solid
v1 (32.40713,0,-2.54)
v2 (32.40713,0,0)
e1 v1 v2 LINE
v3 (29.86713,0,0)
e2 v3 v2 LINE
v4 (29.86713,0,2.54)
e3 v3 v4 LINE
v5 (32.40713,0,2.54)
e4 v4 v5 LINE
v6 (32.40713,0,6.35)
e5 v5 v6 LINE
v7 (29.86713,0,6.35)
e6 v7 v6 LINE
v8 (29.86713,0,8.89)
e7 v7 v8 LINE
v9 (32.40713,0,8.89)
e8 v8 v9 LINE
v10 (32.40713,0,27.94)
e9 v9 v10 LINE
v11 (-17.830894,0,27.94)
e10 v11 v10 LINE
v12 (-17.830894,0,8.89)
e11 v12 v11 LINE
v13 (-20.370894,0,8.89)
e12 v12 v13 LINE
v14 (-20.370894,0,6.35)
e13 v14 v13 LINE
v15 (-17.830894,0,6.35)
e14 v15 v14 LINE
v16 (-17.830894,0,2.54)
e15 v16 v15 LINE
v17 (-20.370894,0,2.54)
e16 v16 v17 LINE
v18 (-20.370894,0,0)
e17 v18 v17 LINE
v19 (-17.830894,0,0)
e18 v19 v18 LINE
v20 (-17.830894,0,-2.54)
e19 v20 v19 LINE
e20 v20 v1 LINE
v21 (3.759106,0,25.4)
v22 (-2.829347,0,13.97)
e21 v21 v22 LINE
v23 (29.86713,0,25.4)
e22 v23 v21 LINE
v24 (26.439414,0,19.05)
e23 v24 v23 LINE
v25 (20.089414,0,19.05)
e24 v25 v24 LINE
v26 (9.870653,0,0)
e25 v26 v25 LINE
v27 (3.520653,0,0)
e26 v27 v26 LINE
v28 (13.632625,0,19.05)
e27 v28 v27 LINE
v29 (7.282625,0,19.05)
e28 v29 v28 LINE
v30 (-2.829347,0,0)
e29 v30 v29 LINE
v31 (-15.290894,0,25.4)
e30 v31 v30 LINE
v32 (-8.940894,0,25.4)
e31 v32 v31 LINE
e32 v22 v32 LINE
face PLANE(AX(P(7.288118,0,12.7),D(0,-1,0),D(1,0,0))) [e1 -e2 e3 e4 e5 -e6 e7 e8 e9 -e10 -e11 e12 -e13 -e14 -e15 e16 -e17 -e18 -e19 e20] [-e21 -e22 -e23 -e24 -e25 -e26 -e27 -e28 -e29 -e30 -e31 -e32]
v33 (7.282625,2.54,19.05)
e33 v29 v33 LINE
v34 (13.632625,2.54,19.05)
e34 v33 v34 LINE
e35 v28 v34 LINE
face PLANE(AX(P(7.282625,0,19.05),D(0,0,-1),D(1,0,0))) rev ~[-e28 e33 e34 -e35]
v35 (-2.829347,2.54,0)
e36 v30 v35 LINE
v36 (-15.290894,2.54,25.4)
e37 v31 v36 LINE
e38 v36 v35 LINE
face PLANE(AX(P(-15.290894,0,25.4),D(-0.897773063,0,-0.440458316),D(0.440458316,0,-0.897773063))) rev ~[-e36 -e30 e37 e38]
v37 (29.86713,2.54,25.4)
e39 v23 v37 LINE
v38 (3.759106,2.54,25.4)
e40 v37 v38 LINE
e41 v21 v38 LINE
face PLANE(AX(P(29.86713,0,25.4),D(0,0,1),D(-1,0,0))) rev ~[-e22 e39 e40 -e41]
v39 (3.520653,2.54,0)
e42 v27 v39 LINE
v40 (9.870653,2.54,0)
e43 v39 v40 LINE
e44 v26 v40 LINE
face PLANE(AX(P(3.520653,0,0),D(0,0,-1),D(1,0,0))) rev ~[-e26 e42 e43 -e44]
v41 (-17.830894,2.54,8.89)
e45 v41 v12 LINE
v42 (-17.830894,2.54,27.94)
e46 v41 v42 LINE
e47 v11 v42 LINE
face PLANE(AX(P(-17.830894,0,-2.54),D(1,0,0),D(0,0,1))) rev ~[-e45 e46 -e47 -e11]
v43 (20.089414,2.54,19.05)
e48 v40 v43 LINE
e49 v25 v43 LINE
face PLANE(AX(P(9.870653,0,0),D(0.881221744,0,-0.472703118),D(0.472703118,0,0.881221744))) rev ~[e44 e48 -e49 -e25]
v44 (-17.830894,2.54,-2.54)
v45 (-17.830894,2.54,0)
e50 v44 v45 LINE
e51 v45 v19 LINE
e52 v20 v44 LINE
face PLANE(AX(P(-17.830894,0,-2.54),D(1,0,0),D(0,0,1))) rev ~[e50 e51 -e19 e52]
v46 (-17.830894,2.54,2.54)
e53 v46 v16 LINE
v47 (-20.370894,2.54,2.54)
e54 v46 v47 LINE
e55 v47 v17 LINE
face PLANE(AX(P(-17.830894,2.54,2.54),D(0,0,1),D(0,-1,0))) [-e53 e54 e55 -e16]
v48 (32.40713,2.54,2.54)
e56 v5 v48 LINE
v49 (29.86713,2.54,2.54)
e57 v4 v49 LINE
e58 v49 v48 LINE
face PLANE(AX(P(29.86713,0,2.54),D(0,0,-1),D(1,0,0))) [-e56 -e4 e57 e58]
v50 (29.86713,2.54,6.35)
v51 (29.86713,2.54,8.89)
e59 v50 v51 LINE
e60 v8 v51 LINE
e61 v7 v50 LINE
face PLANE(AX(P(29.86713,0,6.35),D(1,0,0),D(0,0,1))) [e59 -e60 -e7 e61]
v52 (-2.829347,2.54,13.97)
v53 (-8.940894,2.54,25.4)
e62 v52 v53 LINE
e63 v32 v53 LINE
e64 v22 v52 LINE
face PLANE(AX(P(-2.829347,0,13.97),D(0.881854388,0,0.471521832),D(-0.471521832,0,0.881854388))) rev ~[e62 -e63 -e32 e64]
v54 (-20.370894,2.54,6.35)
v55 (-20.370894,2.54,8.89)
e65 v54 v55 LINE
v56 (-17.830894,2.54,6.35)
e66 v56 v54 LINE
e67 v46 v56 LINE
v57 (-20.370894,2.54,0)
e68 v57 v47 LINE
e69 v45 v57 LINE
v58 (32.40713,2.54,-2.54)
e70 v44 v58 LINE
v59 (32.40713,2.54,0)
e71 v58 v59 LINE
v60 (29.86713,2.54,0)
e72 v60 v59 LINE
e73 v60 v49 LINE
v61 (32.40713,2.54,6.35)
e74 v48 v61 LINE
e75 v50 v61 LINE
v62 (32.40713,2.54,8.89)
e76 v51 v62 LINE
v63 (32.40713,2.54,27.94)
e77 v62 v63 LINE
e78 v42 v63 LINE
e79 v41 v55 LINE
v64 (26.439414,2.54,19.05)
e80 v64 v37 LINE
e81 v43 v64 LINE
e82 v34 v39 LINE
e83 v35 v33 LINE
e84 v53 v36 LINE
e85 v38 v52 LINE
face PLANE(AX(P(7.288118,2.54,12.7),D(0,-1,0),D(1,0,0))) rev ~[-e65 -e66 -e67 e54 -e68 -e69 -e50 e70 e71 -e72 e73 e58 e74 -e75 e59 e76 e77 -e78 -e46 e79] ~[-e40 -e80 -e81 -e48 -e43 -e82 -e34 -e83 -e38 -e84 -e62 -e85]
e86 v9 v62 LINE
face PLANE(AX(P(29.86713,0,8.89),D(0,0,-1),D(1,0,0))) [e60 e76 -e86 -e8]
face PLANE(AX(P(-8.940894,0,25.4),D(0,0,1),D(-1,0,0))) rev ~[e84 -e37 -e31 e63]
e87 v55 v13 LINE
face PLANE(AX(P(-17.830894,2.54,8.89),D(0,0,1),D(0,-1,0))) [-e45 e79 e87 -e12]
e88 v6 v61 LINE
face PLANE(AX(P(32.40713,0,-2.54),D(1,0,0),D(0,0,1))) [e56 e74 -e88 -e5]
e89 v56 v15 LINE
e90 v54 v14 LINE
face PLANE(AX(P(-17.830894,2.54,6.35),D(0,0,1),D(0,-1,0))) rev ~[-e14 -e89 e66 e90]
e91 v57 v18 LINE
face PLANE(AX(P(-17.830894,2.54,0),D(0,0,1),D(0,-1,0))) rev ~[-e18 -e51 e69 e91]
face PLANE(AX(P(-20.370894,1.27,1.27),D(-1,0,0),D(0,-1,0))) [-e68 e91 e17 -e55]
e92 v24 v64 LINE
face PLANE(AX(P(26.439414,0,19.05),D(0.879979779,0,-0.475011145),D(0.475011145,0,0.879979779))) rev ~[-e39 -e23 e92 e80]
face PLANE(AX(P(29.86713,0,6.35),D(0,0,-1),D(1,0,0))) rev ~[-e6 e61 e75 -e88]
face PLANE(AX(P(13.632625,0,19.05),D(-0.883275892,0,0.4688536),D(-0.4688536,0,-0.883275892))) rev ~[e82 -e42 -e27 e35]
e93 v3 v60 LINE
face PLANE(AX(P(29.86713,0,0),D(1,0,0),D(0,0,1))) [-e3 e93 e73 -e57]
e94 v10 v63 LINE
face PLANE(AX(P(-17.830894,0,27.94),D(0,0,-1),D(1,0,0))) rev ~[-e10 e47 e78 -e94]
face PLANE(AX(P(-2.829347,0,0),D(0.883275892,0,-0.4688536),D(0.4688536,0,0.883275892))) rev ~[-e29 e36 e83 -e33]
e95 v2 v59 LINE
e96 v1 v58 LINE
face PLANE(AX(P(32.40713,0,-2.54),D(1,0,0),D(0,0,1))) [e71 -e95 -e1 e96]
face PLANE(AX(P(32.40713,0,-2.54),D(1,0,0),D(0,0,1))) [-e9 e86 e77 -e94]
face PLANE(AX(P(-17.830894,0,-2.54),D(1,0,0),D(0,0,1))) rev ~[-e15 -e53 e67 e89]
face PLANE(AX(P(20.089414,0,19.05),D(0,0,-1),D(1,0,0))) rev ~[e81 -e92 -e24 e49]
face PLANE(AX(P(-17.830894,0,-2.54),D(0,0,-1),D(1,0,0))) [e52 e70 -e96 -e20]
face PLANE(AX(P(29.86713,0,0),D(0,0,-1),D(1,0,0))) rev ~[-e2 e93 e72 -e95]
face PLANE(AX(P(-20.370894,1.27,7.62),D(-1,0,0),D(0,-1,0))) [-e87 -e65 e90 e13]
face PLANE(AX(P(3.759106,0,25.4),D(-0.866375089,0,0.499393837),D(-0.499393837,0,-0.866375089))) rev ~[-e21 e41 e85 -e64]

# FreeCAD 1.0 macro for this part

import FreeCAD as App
import Part
import Sketcher
from FreeCAD import Vector
Q = App.Units.Quantity

doc = App.newDocument("Part")
params = doc.addObject("Spreadsheet::Sheet", "Params")
for row, (alias, value) in enumerate([
    ("sketch1_height", "1.2 in"),
    ("pad1_length", "0.1 in"),
    ("sketch2_width", "0.25 in"),
    ("sketch3_width", "0.1 in"),
    ("sketch4_width", "0.1 in"),
    ("pad2_length", "0.1 in"),
], start=1):
    params.set(f"A{row}", alias)
    params.set(f"B{row}", "=" + value)
    params.setAlias(f"B{row}", alias)

body = doc.addObject("PartDesign::Body", "Body")

sketch1 = body.newObject("Sketcher::SketchObject", "Sketch")
sketch1.AttachmentSupport = (doc.getObject("XZ_Plane"), [""])
sketch1.MapMode = "FlatFace"
sketch1.addGeometry([
    Part.LineSegment(Vector(-18, 28, 0), Vector(-18, -3, 0)),
    Part.LineSegment(Vector(-18, -3, 0), Vector(32, -3, 0)),
    Part.LineSegment(Vector(32, -3, 0), Vector(32, 28, 0)),
    Part.LineSegment(Vector(32, 28, 0), Vector(-18, 28, 0)),
], False)
sketch1.addConstraint([
    Sketcher.Constraint("Coincident", 0, 2, 1, 1),
    Sketcher.Constraint("Coincident", 1, 2, 2, 1),
    Sketcher.Constraint("Coincident", 2, 2, 3, 1),
    Sketcher.Constraint("Coincident", 3, 2, 0, 1),
    Sketcher.Constraint("Vertical", 0),
    Sketcher.Constraint("Horizontal", 1),
    Sketcher.Constraint("Vertical", 2),
    Sketcher.Constraint("Horizontal", 3),
    Sketcher.Constraint("DistanceY", 0, 2, 0, 1, Q("1.2 in")),
    Sketcher.Constraint("DistanceY", 0, 2, -1, 1, Q("0.1 in")),
    Sketcher.Constraint("DistanceX", 1, 1, 1, 2, 50.238024),
    Sketcher.Constraint("DistanceX", -1, 1, 1, 2, 32.40713),
])
sketch1.setExpression("Constraints[8]", "Params.sketch1_height")
pad1 = body.newObject("PartDesign::Pad", "Pad")
pad1.Profile = sketch1
pad1.setExpression("Length", "Params.pad1_length")
pad1.Reversed = True

sketch2 = body.newObject("Sketcher::SketchObject", "Sketch001")
sketch2.AttachmentSupport = (doc.getObject("XZ_Plane"), [""])
sketch2.MapMode = "FlatFace"
sketch2.addGeometry([
    Part.LineSegment(Vector(-9, 25, 0), Vector(-15, 25, 0)),
    Part.LineSegment(Vector(-15, 25, 0), Vector(-3, 0, 0)),
    Part.LineSegment(Vector(-3, 0, 0), Vector(7, 19, 0)),
    Part.LineSegment(Vector(7, 19, 0), Vector(14, 19, 0)),
    Part.LineSegment(Vector(14, 19, 0), Vector(4, 0, 0)),
    Part.LineSegment(Vector(4, 0, 0), Vector(10, 0, 0)),
    Part.LineSegment(Vector(10, 0, 0), Vector(20, 19, 0)),
    Part.LineSegment(Vector(20, 19, 0), Vector(26, 19, 0)),
    Part.LineSegment(Vector(26, 19, 0), Vector(30, 25, 0)),
    Part.LineSegment(Vector(30, 25, 0), Vector(4, 25, 0)),
    Part.LineSegment(Vector(4, 25, 0), Vector(-3, 14, 0)),
    Part.LineSegment(Vector(-3, 14, 0), Vector(-9, 25, 0)),
], False)
sketch2.addConstraint([
    Sketcher.Constraint("Coincident", 0, 2, 1, 1),
    Sketcher.Constraint("Coincident", 1, 2, 2, 1),
    Sketcher.Constraint("Coincident", 2, 2, 3, 1),
    Sketcher.Constraint("Coincident", 3, 2, 4, 1),
    Sketcher.Constraint("Coincident", 4, 2, 5, 1),
    Sketcher.Constraint("Coincident", 5, 2, 6, 1),
    Sketcher.Constraint("Coincident", 6, 2, 7, 1),
    Sketcher.Constraint("Coincident", 7, 2, 8, 1),
    Sketcher.Constraint("Coincident", 8, 2, 9, 1),
    Sketcher.Constraint("Coincident", 9, 2, 10, 1),
    Sketcher.Constraint("Coincident", 10, 2, 11, 1),
    Sketcher.Constraint("Coincident", 11, 2, 0, 1),
    Sketcher.Constraint("Horizontal", 0),
    Sketcher.Constraint("Horizontal", 3),
    Sketcher.Constraint("Horizontal", 5),
    Sketcher.Constraint("Horizontal", 7),
    Sketcher.Constraint("Horizontal", 9),
    Sketcher.Constraint("PointOnObject", 1, 2, -1),
    Sketcher.Constraint("PointOnObject", 4, 2, -1),
    Sketcher.Constraint("Parallel", 2, 4),
    Sketcher.Constraint("Horizontal", 3, 2, 6, 2),
    Sketcher.Constraint("Horizontal", 0, 2, 8, 2),
    Sketcher.Constraint("Vertical", 1, 2, 10, 2),
    Sketcher.Constraint("Equal", 0, 3),
    Sketcher.Constraint("Equal", 3, 5),
    Sketcher.Constraint("Equal", 5, 7),
    Sketcher.Constraint("DistanceY", -1, 1, 0, 2, Q("1 in")),
    Sketcher.Constraint("DistanceX", 0, 2, 0, 1, Q("0.25 in")),
    Sketcher.Constraint("DistanceY", 10, 2, 2, 2, Q("0.2 in")),
    Sketcher.Constraint("DistanceX", 11, 2, 9, 2, Q("0.5 in")),
    Sketcher.Constraint("DistanceY", -1, 1, 2, 2, Q("0.75 in")),
    Sketcher.Constraint("Distance", 10, 13.1929),
    Sketcher.Constraint("Distance", 2, 21.56744),
    Sketcher.Constraint("DistanceX", 9, 2, 9, 1, 26.108024),
    Sketcher.Constraint("DistanceX", -1, 1, 8, 2, 29.86713),
    Sketcher.Constraint("DistanceX", 3, 2, 6, 2, 6.456789),
])
sketch2.setExpression("Constraints[27]", "Params.sketch2_width")
pocket1 = body.newObject("PartDesign::Pocket", "Pocket")
pocket1.Profile = sketch2
pocket1.Type = "ThroughAll"

sketch3 = body.newObject("Sketcher::SketchObject", "Sketch002")
sketch3.AttachmentSupport = (doc.getObject("XZ_Plane"), [""])
sketch3.MapMode = "FlatFace"
sketch3.addGeometry([
    Part.LineSegment(Vector(29.9, 8.9, 0), Vector(29.9, 6.3, 0)),
    Part.LineSegment(Vector(29.9, 6.3, 0), Vector(32.4, 6.3, 0)),
    Part.LineSegment(Vector(32.4, 6.3, 0), Vector(32.4, 8.9, 0)),
    Part.LineSegment(Vector(32.4, 8.9, 0), Vector(29.9, 8.9, 0)),
    Part.LineSegment(Vector(29.9, 2.5, 0), Vector(29.9, 0, 0)),
    Part.LineSegment(Vector(29.9, 0, 0), Vector(32.4, 0, 0)),
    Part.LineSegment(Vector(32.4, 0, 0), Vector(32.4, 2.5, 0)),
    Part.LineSegment(Vector(32.4, 2.5, 0), Vector(29.9, 2.5, 0)),
], False)
sketch3.addConstraint([
    Sketcher.Constraint("Coincident", 0, 2, 1, 1),
    Sketcher.Constraint("Coincident", 1, 2, 2, 1),
    Sketcher.Constraint("Coincident", 2, 2, 3, 1),
    Sketcher.Constraint("Coincident", 3, 2, 0, 1),
    Sketcher.Constraint("Coincident", 4, 2, 5, 1),
    Sketcher.Constraint("Coincident", 5, 2, 6, 1),
    Sketcher.Constraint("Coincident", 6, 2, 7, 1),
    Sketcher.Constraint("Coincident", 7, 2, 4, 1),
    Sketcher.Constraint("Vertical", 0),
    Sketcher.Constraint("Horizontal", 1),
    Sketcher.Constraint("Vertical", 2),
    Sketcher.Constraint("Horizontal", 3),
    Sketcher.Constraint("Vertical", 4),
    Sketcher.Constraint("Horizontal", 5),
    Sketcher.Constraint("Vertical", 6),
    Sketcher.Constraint("Horizontal", 7),
    Sketcher.Constraint("PointOnObject", 4, 2, -1),
    Sketcher.Constraint("Vertical", 3, 2, 4, 2),
    Sketcher.Constraint("Vertical", 2, 2, 5, 2),
    Sketcher.Constraint("Equal", 7, 0),
    Sketcher.Constraint("Equal", 2, 4),
    Sketcher.Constraint("DistanceX", 1, 1, 1, 2, Q("0.1 in")),
    Sketcher.Constraint("DistanceY", -1, 1, 0, 2, Q("0.25 in")),
    Sketcher.Constraint("DistanceX", -1, 1, 0, 2, 29.86713),
])
sketch3.setExpression("Constraints[21]", "Params.sketch3_width")
pocket2 = body.newObject("PartDesign::Pocket", "Pocket001")
pocket2.Profile = sketch3
pocket2.Type = "ThroughAll"

sketch4 = body.newObject("Sketcher::SketchObject", "Sketch003")
sketch4.AttachmentSupport = (doc.getObject("YZ_Plane"), [""])
sketch4.MapMode = "FlatFace"
sketch4.AttachmentOffset = App.Placement(Vector(0, 0, -17.830894), App.Rotation())
sketch4.addGeometry([
    Part.LineSegment(Vector(2.5, 8.9, 0), Vector(2.5, 6.3, 0)),
    Part.LineSegment(Vector(2.5, 6.3, 0), Vector(0, 6.3, 0)),
    Part.LineSegment(Vector(0, 6.3, 0), Vector(0, 8.9, 0)),
    Part.LineSegment(Vector(0, 8.9, 0), Vector(2.5, 8.9, 0)),
    Part.LineSegment(Vector(2.5, 2.5, 0), Vector(2.5, 0, 0)),
    Part.LineSegment(Vector(2.5, 0, 0), Vector(0, 0, 0)),
    Part.LineSegment(Vector(0, 0, 0), Vector(0, 2.5, 0)),
    Part.LineSegment(Vector(0, 2.5, 0), Vector(2.5, 2.5, 0)),
], False)
sketch4.addConstraint([
    Sketcher.Constraint("Coincident", 0, 2, 1, 1),
    Sketcher.Constraint("Coincident", 1, 2, 2, 1),
    Sketcher.Constraint("Coincident", 2, 2, 3, 1),
    Sketcher.Constraint("Coincident", 3, 2, 0, 1),
    Sketcher.Constraint("Coincident", 4, 2, 5, 1),
    Sketcher.Constraint("Coincident", 5, 2, 6, 1),
    Sketcher.Constraint("Coincident", 6, 2, 7, 1),
    Sketcher.Constraint("Coincident", 7, 2, 4, 1),
    Sketcher.Constraint("Vertical", 0),
    Sketcher.Constraint("Horizontal", 1),
    Sketcher.Constraint("Vertical", 2),
    Sketcher.Constraint("Horizontal", 3),
    Sketcher.Constraint("Vertical", 4),
    Sketcher.Constraint("Horizontal", 5),
    Sketcher.Constraint("Vertical", 6),
    Sketcher.Constraint("Horizontal", 7),
    Sketcher.Constraint("Coincident", 5, 2, -1, 1),
    Sketcher.Constraint("PointOnObject", 1, 2, -2),
    Sketcher.Constraint("Vertical", 3, 2, 4, 2),
    Sketcher.Constraint("Equal", 7, 0),
    Sketcher.Constraint("Equal", 2, 4),
    Sketcher.Constraint("DistanceX", 1, 2, 1, 1, Q("0.1 in")),
    Sketcher.Constraint("DistanceY", -1, 1, 0, 2, Q("0.25 in")),
])
sketch4.setExpression("Constraints[21]", "Params.sketch4_width")
pad2 = body.newObject("PartDesign::Pad", "Pad001")
pad2.Profile = sketch4
pad2.setExpression("Length", "Params.pad2_length")
pad2.Reversed = True

doc.recompute()
